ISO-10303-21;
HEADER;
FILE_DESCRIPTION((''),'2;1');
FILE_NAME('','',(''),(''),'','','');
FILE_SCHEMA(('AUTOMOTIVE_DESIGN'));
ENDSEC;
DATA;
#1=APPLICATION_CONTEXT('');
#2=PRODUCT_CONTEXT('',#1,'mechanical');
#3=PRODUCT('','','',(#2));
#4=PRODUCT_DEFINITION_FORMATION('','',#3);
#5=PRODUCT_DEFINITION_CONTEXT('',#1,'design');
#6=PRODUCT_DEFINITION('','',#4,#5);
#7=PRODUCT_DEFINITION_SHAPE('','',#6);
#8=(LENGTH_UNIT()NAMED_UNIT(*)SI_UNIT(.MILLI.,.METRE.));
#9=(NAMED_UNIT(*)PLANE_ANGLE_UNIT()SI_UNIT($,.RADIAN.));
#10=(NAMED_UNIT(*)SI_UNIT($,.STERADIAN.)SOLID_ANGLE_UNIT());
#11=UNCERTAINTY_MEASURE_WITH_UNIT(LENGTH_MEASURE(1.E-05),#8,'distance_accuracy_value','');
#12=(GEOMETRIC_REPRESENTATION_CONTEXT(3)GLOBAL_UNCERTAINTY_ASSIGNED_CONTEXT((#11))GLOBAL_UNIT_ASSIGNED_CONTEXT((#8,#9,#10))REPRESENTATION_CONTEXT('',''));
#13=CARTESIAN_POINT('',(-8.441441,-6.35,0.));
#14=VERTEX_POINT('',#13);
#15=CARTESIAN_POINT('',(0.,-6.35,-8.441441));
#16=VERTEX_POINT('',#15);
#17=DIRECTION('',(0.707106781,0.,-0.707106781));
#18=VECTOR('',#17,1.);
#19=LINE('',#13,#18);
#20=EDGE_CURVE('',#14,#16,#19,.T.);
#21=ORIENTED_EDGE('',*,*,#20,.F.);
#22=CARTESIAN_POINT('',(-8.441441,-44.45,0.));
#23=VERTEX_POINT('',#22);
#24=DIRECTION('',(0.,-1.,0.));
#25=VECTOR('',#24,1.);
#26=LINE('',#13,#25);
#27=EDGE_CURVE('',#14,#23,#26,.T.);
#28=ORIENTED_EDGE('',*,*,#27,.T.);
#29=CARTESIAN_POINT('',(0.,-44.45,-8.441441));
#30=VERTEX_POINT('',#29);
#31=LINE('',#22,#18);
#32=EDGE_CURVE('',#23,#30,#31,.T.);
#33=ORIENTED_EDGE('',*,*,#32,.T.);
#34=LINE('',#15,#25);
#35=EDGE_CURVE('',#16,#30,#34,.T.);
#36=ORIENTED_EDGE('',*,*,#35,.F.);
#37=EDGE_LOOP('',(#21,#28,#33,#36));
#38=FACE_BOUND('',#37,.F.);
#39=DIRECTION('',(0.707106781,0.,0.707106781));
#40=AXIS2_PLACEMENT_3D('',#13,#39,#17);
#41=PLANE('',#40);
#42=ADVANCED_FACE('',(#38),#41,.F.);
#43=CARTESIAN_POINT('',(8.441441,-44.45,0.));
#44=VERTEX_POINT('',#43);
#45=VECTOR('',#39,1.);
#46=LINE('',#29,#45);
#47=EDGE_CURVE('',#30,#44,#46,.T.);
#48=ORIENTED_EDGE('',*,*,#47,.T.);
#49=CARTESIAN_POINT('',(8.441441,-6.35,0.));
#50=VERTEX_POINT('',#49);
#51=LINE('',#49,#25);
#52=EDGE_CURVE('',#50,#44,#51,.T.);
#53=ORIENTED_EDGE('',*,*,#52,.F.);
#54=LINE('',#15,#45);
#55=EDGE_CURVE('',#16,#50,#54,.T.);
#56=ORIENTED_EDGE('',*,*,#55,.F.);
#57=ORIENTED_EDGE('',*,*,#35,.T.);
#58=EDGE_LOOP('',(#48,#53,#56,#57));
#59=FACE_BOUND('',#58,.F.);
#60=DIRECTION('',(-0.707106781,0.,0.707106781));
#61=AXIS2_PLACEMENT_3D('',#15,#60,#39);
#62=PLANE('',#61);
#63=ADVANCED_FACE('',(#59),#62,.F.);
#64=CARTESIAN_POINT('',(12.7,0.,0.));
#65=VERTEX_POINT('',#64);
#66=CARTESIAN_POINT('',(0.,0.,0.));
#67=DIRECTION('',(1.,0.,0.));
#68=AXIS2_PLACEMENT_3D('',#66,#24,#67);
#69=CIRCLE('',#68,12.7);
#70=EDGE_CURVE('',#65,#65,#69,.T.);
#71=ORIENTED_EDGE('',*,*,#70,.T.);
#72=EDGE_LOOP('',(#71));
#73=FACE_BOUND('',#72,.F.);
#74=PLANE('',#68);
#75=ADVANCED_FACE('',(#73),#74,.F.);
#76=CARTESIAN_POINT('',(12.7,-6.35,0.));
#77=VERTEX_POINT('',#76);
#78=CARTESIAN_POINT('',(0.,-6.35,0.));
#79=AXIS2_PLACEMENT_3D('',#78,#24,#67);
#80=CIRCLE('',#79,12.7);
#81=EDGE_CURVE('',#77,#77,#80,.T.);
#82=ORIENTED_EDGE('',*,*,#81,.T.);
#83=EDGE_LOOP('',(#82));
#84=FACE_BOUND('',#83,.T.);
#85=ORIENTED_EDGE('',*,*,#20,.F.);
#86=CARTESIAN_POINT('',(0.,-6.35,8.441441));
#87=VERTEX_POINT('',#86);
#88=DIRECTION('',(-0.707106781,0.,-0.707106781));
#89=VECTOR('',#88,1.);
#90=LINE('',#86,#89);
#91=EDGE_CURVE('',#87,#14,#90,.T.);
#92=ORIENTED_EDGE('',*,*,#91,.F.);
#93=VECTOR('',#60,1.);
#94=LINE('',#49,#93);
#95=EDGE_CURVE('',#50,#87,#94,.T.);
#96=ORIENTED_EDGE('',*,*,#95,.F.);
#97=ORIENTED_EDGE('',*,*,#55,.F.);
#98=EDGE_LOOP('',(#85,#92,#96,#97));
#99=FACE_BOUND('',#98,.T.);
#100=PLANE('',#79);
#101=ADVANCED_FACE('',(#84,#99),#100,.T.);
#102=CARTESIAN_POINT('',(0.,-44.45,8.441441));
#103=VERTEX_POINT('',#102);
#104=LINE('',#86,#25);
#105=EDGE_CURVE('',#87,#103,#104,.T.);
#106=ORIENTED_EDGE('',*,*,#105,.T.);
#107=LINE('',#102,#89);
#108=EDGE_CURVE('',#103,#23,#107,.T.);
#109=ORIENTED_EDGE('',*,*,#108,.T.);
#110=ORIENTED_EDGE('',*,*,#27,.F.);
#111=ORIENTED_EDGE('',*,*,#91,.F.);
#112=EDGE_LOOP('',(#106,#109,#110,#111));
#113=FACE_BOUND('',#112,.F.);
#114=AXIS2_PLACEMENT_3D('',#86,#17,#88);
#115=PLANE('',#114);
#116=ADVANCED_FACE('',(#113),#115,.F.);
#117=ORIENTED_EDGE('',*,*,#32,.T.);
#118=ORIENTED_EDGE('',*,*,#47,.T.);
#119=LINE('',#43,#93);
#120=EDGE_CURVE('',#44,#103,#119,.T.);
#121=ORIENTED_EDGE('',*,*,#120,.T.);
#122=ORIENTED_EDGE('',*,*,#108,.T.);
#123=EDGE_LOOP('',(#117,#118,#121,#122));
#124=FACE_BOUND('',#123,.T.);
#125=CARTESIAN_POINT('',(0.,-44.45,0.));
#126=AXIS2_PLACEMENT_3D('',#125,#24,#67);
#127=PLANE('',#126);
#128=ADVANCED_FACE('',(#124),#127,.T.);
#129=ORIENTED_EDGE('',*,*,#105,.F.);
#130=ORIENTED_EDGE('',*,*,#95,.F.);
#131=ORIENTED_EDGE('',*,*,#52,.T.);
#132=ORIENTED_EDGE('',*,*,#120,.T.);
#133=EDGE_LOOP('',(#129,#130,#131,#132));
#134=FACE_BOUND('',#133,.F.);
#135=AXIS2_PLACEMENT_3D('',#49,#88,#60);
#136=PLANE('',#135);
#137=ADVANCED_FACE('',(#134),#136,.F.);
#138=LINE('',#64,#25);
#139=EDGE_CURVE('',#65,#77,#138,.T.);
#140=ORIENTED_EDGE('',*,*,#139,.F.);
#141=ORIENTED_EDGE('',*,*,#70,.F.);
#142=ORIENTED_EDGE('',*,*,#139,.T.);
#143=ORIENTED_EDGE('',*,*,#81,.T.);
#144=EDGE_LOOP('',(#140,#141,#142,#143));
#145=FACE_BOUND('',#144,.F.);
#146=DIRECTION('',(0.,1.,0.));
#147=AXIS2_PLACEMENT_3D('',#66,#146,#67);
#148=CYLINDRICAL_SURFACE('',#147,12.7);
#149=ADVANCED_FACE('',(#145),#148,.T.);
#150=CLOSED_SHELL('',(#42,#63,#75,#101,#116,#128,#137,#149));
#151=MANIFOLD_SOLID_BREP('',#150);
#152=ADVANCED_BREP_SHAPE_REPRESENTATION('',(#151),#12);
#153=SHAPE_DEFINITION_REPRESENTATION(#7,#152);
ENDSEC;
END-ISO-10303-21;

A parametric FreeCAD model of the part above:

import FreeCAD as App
import Part
import Sketcher
Q = App.Units.Quantity


def add_polygon(sketch, points):
    """Adds a closed chain of lines whose ends are joined by coincident constraints."""
    first, n = sketch.GeometryCount, len(points)
    for a, b in zip(points, points[1:] + points[:1]):
        sketch.addGeometry(Part.LineSegment(App.Vector(*a, 0), App.Vector(*b, 0)), False)
    for i in range(n):
        sketch.addConstraint(Sketcher.Constraint("Coincident", first + i, 2, first + (i + 1) % n, 1))

doc = App.newDocument("Part")
body = doc.addObject("PartDesign::Body", "Body")

# Sketch on XZ plane
sketch1 = doc.addObject("Sketcher::SketchObject", "Sketch")
body.addObject(sketch1)
sketch1.AttachmentSupport = (doc.XZ_Plane, [""])
sketch1.MapMode = "FlatFace"
sketch1.addGeometry(Part.Circle(App.Vector(0, 0, 0), App.Vector(0, 0, 1), 13), False)
sketch1.addConstraint([
    Sketcher.Constraint("Coincident", 0, 3, -1, 1),
    Sketcher.Constraint("Diameter", 0, Q("1 in")),
])
pad1 = doc.addObject("PartDesign::Pad", "Pad")
body.addObject(pad1)
pad1.Profile = sketch1
pad1.Length = Q("0.25 in")

# Sketch on XZ plane
sketch2 = doc.addObject("Sketcher::SketchObject", "Sketch001")
body.addObject(sketch2)
sketch2.AttachmentSupport = (doc.XZ_Plane, [""])
sketch2.MapMode = "FlatFace"
sketch2.AttachmentOffset = App.Placement(App.Vector(0, 0, 0.25 * 25.4), App.Rotation())
add_polygon(sketch2, [(0, -8), (8, 0), (0, 8), (-8, 0)])  # lines 0-3
sketch2.addConstraint([
    Sketcher.Constraint("Symmetric", 0, 2, 2, 2, -1, 1),
    Sketcher.Constraint("Symmetric", 1, 2, 3, 2, -1, 1),
    Sketcher.Constraint("PointOnObject", 0, 2, -1),
    Sketcher.Constraint("PointOnObject", 1, 2, -2),
    Sketcher.Constraint("Perpendicular", 0, 1),
    Sketcher.Constraint("Distance", 0, Q("0.47 in")),
])
pad2 = doc.addObject("PartDesign::Pad", "Pad001")
body.addObject(pad2)
pad2.Profile = sketch2
pad2.Length = Q("1.5 in")

doc.recompute()
